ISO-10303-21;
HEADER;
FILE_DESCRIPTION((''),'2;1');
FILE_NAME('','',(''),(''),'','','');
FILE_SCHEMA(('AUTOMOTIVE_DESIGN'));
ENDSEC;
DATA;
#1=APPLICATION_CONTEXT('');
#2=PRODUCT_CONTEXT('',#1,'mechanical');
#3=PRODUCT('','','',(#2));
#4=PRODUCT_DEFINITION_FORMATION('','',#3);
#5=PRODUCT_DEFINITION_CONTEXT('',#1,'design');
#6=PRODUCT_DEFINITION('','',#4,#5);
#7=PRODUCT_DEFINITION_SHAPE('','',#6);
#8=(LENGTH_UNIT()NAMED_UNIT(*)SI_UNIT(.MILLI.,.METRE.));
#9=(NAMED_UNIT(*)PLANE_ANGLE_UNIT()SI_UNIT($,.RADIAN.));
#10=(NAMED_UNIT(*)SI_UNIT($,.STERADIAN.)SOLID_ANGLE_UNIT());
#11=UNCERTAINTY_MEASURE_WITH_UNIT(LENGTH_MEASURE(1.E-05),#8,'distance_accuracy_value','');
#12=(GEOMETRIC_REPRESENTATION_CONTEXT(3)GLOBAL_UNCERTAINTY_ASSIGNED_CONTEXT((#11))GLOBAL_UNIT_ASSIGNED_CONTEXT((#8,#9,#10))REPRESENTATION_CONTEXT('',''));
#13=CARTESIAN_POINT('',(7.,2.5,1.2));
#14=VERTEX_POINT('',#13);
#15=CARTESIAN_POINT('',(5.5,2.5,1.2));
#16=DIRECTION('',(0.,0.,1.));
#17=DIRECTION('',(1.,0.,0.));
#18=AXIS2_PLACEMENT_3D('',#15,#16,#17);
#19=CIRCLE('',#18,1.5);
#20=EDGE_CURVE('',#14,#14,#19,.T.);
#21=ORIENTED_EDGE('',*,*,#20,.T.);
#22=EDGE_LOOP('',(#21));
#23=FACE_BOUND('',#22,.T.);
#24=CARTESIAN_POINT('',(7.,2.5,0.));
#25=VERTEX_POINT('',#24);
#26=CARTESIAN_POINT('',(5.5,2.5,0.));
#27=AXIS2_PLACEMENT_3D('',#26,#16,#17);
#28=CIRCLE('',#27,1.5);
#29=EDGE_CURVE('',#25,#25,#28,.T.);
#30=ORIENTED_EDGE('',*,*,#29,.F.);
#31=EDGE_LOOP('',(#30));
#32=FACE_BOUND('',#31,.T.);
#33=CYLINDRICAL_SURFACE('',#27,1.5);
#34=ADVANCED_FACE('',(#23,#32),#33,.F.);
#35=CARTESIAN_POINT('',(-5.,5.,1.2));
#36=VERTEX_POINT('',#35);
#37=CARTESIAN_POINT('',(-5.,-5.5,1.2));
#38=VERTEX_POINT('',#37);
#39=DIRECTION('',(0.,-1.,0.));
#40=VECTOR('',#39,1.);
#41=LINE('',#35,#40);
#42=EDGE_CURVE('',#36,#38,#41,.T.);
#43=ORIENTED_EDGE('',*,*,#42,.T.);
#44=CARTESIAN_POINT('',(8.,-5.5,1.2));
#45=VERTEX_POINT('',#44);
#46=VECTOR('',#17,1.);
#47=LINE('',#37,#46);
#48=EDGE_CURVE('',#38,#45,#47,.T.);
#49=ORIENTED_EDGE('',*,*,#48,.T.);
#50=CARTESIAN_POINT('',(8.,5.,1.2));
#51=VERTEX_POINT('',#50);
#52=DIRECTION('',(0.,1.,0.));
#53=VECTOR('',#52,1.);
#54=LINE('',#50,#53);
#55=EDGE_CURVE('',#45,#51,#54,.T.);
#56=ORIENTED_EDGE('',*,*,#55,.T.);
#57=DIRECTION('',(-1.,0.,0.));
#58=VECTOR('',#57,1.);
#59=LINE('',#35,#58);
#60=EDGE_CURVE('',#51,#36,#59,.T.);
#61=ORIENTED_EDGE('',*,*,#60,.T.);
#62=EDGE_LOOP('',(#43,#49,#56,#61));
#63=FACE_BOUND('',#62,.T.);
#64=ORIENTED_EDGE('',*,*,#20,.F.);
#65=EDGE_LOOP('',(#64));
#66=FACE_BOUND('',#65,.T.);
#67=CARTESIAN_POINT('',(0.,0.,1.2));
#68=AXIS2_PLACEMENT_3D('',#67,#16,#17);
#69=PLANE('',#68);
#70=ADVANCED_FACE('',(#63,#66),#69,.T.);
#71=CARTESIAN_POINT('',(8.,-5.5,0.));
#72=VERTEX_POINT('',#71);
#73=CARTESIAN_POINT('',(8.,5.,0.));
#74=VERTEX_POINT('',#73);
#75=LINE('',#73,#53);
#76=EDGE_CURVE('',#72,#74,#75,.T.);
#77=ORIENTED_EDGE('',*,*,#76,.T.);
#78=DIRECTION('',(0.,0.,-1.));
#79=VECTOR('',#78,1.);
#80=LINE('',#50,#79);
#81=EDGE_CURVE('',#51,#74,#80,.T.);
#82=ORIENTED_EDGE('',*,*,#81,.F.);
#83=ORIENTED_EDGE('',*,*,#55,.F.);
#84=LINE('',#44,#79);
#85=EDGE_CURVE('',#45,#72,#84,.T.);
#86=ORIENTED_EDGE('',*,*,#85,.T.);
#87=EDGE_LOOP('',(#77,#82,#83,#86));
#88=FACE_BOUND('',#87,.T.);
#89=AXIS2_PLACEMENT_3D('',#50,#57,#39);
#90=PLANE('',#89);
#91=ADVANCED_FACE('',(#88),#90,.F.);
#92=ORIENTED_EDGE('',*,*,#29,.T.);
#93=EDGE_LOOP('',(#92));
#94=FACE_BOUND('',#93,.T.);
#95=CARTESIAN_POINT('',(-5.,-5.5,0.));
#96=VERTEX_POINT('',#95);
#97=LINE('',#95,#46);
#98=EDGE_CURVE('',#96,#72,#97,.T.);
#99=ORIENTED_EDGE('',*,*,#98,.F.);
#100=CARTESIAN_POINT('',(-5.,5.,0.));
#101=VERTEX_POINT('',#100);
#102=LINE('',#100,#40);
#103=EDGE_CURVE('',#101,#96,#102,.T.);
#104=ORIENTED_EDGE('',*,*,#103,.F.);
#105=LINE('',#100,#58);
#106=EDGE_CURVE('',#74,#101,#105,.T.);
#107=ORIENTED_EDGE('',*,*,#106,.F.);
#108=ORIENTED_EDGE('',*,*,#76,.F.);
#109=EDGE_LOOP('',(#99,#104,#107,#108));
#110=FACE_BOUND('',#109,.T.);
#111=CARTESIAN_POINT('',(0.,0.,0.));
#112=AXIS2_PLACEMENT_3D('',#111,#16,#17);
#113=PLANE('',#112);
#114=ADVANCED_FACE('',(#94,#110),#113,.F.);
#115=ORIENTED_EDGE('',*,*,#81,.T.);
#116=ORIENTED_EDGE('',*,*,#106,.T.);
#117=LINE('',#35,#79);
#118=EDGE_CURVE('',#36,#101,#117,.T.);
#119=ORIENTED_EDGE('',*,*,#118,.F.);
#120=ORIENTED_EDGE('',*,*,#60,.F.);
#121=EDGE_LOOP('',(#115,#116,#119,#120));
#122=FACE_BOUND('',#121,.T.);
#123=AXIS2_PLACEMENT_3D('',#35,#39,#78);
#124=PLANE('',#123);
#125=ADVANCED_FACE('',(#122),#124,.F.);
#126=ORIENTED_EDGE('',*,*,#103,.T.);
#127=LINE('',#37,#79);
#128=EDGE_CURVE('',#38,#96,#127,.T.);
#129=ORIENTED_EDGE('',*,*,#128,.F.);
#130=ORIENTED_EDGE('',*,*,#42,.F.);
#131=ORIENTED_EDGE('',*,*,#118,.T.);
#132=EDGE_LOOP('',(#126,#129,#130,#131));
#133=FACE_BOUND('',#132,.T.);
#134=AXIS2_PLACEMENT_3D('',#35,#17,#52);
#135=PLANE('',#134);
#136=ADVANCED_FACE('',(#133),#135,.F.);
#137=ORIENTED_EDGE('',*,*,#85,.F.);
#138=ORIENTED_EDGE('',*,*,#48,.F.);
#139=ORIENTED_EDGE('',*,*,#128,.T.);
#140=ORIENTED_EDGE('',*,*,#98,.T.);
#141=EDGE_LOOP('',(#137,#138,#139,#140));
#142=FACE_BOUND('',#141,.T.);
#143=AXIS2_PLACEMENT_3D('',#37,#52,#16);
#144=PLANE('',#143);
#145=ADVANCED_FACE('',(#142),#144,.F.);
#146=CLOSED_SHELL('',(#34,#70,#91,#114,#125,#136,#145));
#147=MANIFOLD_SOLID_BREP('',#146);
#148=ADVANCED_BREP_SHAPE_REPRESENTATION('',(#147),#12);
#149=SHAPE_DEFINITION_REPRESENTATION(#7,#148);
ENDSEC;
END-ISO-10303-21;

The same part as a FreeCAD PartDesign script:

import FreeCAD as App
import Part
import Sketcher
from FreeCAD import Vector


def add_polygon(sketch, points):
    """Adds a closed chain of lines whose ends are joined by coincident constraints."""
    first, n = sketch.GeometryCount, len(points)
    for a, b in zip(points, points[1:] + points[:1]):
        sketch.addGeometry(Part.LineSegment(App.Vector(*a, 0), App.Vector(*b, 0)), False)
    for i in range(n):
        sketch.addConstraint(Sketcher.Constraint("Coincident", first + i, 2, first + (i + 1) % n, 1))

doc = App.newDocument("Part")
params = doc.addObject("Spreadsheet::Sheet", "Params")
for row, (alias, value) in enumerate([
    ("sketch1_width", "13 mm"),
    ("sketch1_height", "10.5 mm"),
    ("pad1_length", "1.2 mm"),
    ("sketch2_diameter", "3 mm"),
    ("pocket1_length", "1.2 mm"),
], start=1):
    params.set(f"A{row}", alias)
    params.set(f"B{row}", "=" + value)
    params.setAlias(f"B{row}", alias)

body = doc.addObject("PartDesign::Body", "Body")

sketch1 = body.newObject("Sketcher::SketchObject", "Sketch")
sketch1.AttachmentSupport = (doc.getObject("XY_Plane"), [""])
sketch1.MapMode = "FlatFace"
add_polygon(sketch1, [(-5, 5), (-5, -5.5), (8, -5.5), (8, 5)])
sketch1.addConstraint([
    Sketcher.Constraint("Vertical", 0),
    Sketcher.Constraint("Horizontal", 1),
    Sketcher.Constraint("Vertical", 2),
    Sketcher.Constraint("Horizontal", 3),
    Sketcher.Constraint("DistanceX", 1, 1, 1, 2, 13.0),
    Sketcher.Constraint("DistanceY", 0, 2, 0, 1, 10.5),
    Sketcher.Constraint("DistanceX", 0, 2, -1, 1, 5.0),
    Sketcher.Constraint("DistanceY", -1, 1, 2, 2, 5.0),
])
sketch1.setExpression("Constraints[8]", "Params.sketch1_width")
sketch1.setExpression("Constraints[9]", "Params.sketch1_height")
pad1 = body.newObject("PartDesign::Pad", "Pad")
pad1.Profile = sketch1
pad1.setExpression("Length", "Params.pad1_length")

sketch2 = body.newObject("Sketcher::SketchObject", "Sketch001")
sketch2.AttachmentSupport = (doc.getObject("XY_Plane"), [""])
sketch2.MapMode = "FlatFace"
sketch2.AttachmentOffset = App.Placement(Vector(0, 0, 1.2), App.Rotation())
sketch2.addGeometry(Part.Circle(Vector(5.5, 2.5, 0), Vector(0, 0, 1), 1.5), False)
sketch2.addConstraint([
    Sketcher.Constraint("Diameter", 0, 3.0),
    Sketcher.Constraint("DistanceX", -1, 1, 0, 3, 5.5),
    Sketcher.Constraint("DistanceY", -1, 1, 0, 3, 2.5),
])
sketch2.setExpression("Constraints[0]", "Params.sketch2_diameter")
pocket1 = body.newObject("PartDesign::Pocket", "Pocket")
pocket1.Profile = sketch2
pocket1.setExpression("Length", "Params.pocket1_length")

doc.recompute()
